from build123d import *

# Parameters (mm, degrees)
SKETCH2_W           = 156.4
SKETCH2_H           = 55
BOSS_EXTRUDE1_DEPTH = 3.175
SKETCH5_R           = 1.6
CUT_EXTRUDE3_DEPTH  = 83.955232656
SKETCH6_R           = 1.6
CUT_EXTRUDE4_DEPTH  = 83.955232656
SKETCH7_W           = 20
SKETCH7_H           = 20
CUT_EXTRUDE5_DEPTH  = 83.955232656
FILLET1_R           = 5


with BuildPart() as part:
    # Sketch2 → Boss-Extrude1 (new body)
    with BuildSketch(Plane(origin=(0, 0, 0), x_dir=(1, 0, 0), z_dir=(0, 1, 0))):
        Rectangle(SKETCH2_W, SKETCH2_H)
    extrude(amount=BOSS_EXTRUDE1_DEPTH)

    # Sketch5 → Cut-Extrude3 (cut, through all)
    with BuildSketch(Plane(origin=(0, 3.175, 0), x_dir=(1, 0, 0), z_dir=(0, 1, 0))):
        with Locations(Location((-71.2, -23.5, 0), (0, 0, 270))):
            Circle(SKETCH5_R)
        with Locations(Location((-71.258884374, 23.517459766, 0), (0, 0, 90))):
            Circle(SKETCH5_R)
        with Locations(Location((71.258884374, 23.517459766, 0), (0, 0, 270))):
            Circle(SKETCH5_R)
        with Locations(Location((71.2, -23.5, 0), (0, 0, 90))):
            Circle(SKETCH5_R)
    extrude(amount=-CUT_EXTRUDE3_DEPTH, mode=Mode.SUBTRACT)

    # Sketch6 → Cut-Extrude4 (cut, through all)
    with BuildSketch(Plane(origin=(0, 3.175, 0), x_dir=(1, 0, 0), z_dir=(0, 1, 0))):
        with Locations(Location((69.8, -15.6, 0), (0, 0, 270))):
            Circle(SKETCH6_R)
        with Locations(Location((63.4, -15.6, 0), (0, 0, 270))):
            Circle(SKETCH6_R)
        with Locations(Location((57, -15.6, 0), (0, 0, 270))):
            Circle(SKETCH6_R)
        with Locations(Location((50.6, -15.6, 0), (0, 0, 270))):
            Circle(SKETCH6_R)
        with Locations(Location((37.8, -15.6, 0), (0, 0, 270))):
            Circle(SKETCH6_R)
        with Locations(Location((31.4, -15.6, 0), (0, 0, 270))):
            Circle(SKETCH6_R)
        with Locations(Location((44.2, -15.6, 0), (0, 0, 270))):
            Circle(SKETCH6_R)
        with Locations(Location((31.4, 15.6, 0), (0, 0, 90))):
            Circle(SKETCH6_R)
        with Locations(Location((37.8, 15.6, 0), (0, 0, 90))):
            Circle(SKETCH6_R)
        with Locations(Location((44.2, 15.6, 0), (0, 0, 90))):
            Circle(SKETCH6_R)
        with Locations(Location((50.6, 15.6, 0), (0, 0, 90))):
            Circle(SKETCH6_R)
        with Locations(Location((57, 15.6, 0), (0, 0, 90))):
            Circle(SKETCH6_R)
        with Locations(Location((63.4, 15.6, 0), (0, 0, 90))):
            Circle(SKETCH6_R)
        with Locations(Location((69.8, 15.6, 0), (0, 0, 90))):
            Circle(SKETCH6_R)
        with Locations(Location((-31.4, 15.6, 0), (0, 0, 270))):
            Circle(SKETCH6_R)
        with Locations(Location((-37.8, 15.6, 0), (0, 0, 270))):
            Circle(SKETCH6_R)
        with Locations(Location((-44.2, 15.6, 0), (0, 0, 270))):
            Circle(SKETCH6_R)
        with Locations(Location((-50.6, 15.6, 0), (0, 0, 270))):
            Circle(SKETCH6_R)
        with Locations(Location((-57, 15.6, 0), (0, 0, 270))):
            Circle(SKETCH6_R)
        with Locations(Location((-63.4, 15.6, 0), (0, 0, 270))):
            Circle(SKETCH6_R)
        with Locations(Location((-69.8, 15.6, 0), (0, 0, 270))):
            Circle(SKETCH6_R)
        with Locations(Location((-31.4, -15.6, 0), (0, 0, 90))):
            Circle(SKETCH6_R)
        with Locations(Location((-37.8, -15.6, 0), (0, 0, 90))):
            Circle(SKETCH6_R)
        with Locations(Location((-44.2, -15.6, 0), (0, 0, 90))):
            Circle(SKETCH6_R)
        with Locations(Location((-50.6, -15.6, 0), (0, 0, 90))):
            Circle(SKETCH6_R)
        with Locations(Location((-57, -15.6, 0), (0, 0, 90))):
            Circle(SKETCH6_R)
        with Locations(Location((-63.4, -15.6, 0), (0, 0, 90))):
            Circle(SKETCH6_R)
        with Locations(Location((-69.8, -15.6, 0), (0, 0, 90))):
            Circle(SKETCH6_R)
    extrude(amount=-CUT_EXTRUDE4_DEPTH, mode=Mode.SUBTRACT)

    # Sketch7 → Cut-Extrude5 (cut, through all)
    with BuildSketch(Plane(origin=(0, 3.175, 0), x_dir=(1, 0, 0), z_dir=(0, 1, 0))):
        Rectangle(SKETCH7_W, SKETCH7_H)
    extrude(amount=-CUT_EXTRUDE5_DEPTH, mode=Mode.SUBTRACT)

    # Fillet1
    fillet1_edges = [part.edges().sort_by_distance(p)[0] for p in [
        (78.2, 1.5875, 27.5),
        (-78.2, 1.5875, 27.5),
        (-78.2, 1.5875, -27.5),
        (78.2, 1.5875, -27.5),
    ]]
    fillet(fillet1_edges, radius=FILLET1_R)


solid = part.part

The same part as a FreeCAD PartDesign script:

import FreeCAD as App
import Part
import Sketcher
Q = App.Units.Quantity


def edges_at(feature, points):
    """Names of the edges that pass closest to the given points."""
    edges = feature.Shape.Edges
    near = lambda p: min(range(len(edges)), key=lambda i: edges[i].distToShape(Part.Vertex(*p))[0])
    return sorted({f"Edge{near(p) + 1}" for p in points})


def add_polygon(sketch, points):
    """Adds a closed chain of lines whose ends are joined by coincident constraints."""
    first, n = sketch.GeometryCount, len(points)
    for a, b in zip(points, points[1:] + points[:1]):
        sketch.addGeometry(Part.LineSegment(App.Vector(*a, 0), App.Vector(*b, 0)), False)
    for i in range(n):
        sketch.addConstraint(Sketcher.Constraint("Coincident", first + i, 2, first + (i + 1) % n, 1))

doc = App.newDocument("Part")
body = doc.addObject("PartDesign::Body", "Body")

sketch1 = body.newObject("Sketcher::SketchObject", "Sketch")
sketch1.AttachmentSupport = (doc.getObject("XZ_Plane"), [""])
sketch1.MapMode = "FlatFace"
add_polygon(sketch1, [(-78, -28), (-78, 28), (78, 28), (78, -28)])
sketch1.addConstraint(Sketcher.Constraint("Vertical", 0))
sketch1.addConstraint(Sketcher.Constraint("Horizontal", 1))
sketch1.addConstraint(Sketcher.Constraint("Vertical", 2))
sketch1.addConstraint(Sketcher.Constraint("Horizontal", 3))
sketch1.addConstraint(Sketcher.Constraint("Symmetric", 0, 2, 2, 2, -1, 1))
sketch1.addConstraint(Sketcher.Constraint("DistanceY", 0, 1, 0, 2, Q("55 mm")))
sketch1.addConstraint(Sketcher.Constraint("DistanceX", 1, 1, 1, 2, Q("156.4 mm")))
pad1 = body.newObject("PartDesign::Pad", "Pad")
pad1.Profile = sketch1
pad1.Length = 3.175
pad1.Reversed = True

sketch2 = body.newObject("Sketcher::SketchObject", "Sketch001")
sketch2.AttachmentSupport = (doc.getObject("XZ_Plane"), [""])
sketch2.MapMode = "FlatFace"
sketch2.AttachmentOffset = App.Placement(App.Vector(0, 0, -3.175), App.Rotation())
sketch2.addGeometry(Part.Circle(App.Vector(-71.2, 23.5, 0), App.Vector(0, 0, 1), 1.6), False)
sketch2.addGeometry(Part.Circle(App.Vector(-71.3, -23.5, 0), App.Vector(0, 0, 1), 1.6), False)
sketch2.addGeometry(Part.Circle(App.Vector(71.3, -23.5, 0), App.Vector(0, 0, 1), 1.6), False)
sketch2.addGeometry(Part.Circle(App.Vector(71.2, 23.5, 0), App.Vector(0, 0, 1), 1.6), False)
sketch2.addConstraint(Sketcher.Constraint("Equal", 0, 1))
sketch2.addConstraint(Sketcher.Constraint("Equal", 1, 2))
sketch2.addConstraint(Sketcher.Constraint("Equal", 2, 3))
sketch2.addConstraint(Sketcher.Constraint("Symmetric", 1, 3, 2, 3, -2))
sketch2.addConstraint(Sketcher.Constraint("Symmetric", 0, 3, 3, 3, -2))
sketch2.addConstraint(Sketcher.Constraint("Diameter", 0, Q("3.2 mm")))
sketch2.addConstraint(Sketcher.Constraint("DistanceX", 0, 3, -1, 1, Q("71.2 mm")))
sketch2.addConstraint(Sketcher.Constraint("DistanceY", -1, 1, 0, 3, Q("23.5 mm")))
sketch2.addConstraint(Sketcher.Constraint("DistanceY", 1, 3, -1, 1, Q("23.51746 mm")))
sketch2.addConstraint(Sketcher.Constraint("DistanceX", 1, 3, 2, 3, Q("142.517769 mm")))
pocket1 = body.newObject("PartDesign::Pocket", "Pocket")
pocket1.Profile = sketch2
pocket1.Type = "ThroughAll"
pocket1.Reversed = True

sketch3 = body.newObject("Sketcher::SketchObject", "Sketch002")
sketch3.AttachmentSupport = (doc.getObject("XZ_Plane"), [""])
sketch3.MapMode = "FlatFace"
sketch3.AttachmentOffset = App.Placement(App.Vector(0, 0, -3.175), App.Rotation())
sketch3.addGeometry(Part.Circle(App.Vector(69.8, 15.6, 0), App.Vector(0, 0, 1), 1.6), False)
sketch3.addGeometry(Part.Circle(App.Vector(63.4, 15.6, 0), App.Vector(0, 0, 1), 1.6), False)
sketch3.addGeometry(Part.Circle(App.Vector(57, 15.6, 0), App.Vector(0, 0, 1), 1.6), False)
sketch3.addGeometry(Part.Circle(App.Vector(50.6, 15.6, 0), App.Vector(0, 0, 1), 1.6), False)
sketch3.addGeometry(Part.Circle(App.Vector(37.8, 15.6, 0), App.Vector(0, 0, 1), 1.6), False)
sketch3.addGeometry(Part.Circle(App.Vector(31.4, 15.6, 0), App.Vector(0, 0, 1), 1.6), False)
sketch3.addGeometry(Part.Circle(App.Vector(44.2, 15.6, 0), App.Vector(0, 0, 1), 1.6), False)
sketch3.addGeometry(Part.Circle(App.Vector(31.4, -15.6, 0), App.Vector(0, 0, 1), 1.6), False)
sketch3.addGeometry(Part.Circle(App.Vector(37.8, -15.6, 0), App.Vector(0, 0, 1), 1.6), False)
sketch3.addGeometry(Part.Circle(App.Vector(44.2, -15.6, 0), App.Vector(0, 0, 1), 1.6), False)
sketch3.addGeometry(Part.Circle(App.Vector(50.6, -15.6, 0), App.Vector(0, 0, 1), 1.6), False)
sketch3.addGeometry(Part.Circle(App.Vector(57, -15.6, 0), App.Vector(0, 0, 1), 1.6), False)
sketch3.addGeometry(Part.Circle(App.Vector(63.4, -15.6, 0), App.Vector(0, 0, 1), 1.6), False)
sketch3.addGeometry(Part.Circle(App.Vector(69.8, -15.6, 0), App.Vector(0, 0, 1), 1.6), False)
sketch3.addGeometry(Part.Circle(App.Vector(-31.4, -15.6, 0), App.Vector(0, 0, 1), 1.6), False)
sketch3.addGeometry(Part.Circle(App.Vector(-37.8, -15.6, 0), App.Vector(0, 0, 1), 1.6), False)
sketch3.addGeometry(Part.Circle(App.Vector(-44.2, -15.6, 0), App.Vector(0, 0, 1), 1.6), False)
sketch3.addGeometry(Part.Circle(App.Vector(-50.6, -15.6, 0), App.Vector(0, 0, 1), 1.6), False)
sketch3.addGeometry(Part.Circle(App.Vector(-57, -15.6, 0), App.Vector(0, 0, 1), 1.6), False)
sketch3.addGeometry(Part.Circle(App.Vector(-63.4, -15.6, 0), App.Vector(0, 0, 1), 1.6), False)
sketch3.addGeometry(Part.Circle(App.Vector(-69.8, -15.6, 0), App.Vector(0, 0, 1), 1.6), False)
sketch3.addGeometry(Part.Circle(App.Vector(-31.4, 15.6, 0), App.Vector(0, 0, 1), 1.6), False)
sketch3.addGeometry(Part.Circle(App.Vector(-37.8, 15.6, 0), App.Vector(0, 0, 1), 1.6), False)
sketch3.addGeometry(Part.Circle(App.Vector(-44.2, 15.6, 0), App.Vector(0, 0, 1), 1.6), False)
sketch3.addGeometry(Part.Circle(App.Vector(-50.6, 15.6, 0), App.Vector(0, 0, 1), 1.6), False)
sketch3.addGeometry(Part.Circle(App.Vector(-57, 15.6, 0), App.Vector(0, 0, 1), 1.6), False)
sketch3.addGeometry(Part.Circle(App.Vector(-63.4, 15.6, 0), App.Vector(0, 0, 1), 1.6), False)
sketch3.addGeometry(Part.Circle(App.Vector(-69.8, 15.6, 0), App.Vector(0, 0, 1), 1.6), False)
sketch3.addConstraint(Sketcher.Constraint("Equal", 0, 1))
sketch3.addConstraint(Sketcher.Constraint("Equal", 1, 2))
sketch3.addConstraint(Sketcher.Constraint("Equal", 2, 3))
sketch3.addConstraint(Sketcher.Constraint("Equal", 3, 4))
sketch3.addConstraint(Sketcher.Constraint("Equal", 4, 5))
sketch3.addConstraint(Sketcher.Constraint("Equal", 5, 6))
sketch3.addConstraint(Sketcher.Constraint("Equal", 6, 7))
sketch3.addConstraint(Sketcher.Constraint("Equal", 7, 8))
sketch3.addConstraint(Sketcher.Constraint("Equal", 8, 9))
sketch3.addConstraint(Sketcher.Constraint("Equal", 9, 10))
sketch3.addConstraint(Sketcher.Constraint("Equal", 10, 11))
sketch3.addConstraint(Sketcher.Constraint("Equal", 11, 12))
sketch3.addConstraint(Sketcher.Constraint("Equal", 12, 13))
sketch3.addConstraint(Sketcher.Constraint("Equal", 13, 14))
sketch3.addConstraint(Sketcher.Constraint("Equal", 14, 15))
sketch3.addConstraint(Sketcher.Constraint("Equal", 15, 16))
sketch3.addConstraint(Sketcher.Constraint("Equal", 16, 17))
sketch3.addConstraint(Sketcher.Constraint("Equal", 17, 18))
sketch3.addConstraint(Sketcher.Constraint("Equal", 18, 19))
sketch3.addConstraint(Sketcher.Constraint("Equal", 19, 20))
sketch3.addConstraint(Sketcher.Constraint("Equal", 20, 21))
sketch3.addConstraint(Sketcher.Constraint("Equal", 21, 22))
sketch3.addConstraint(Sketcher.Constraint("Equal", 22, 23))
sketch3.addConstraint(Sketcher.Constraint("Equal", 23, 24))
sketch3.addConstraint(Sketcher.Constraint("Equal", 24, 25))
sketch3.addConstraint(Sketcher.Constraint("Equal", 25, 26))
sketch3.addConstraint(Sketcher.Constraint("Equal", 26, 27))
sketch3.addConstraint(Sketcher.Constraint("Symmetric", 5, 3, 14, 3, -1, 1))
sketch3.addConstraint(Sketcher.Constraint("Symmetric", 4, 3, 15, 3, -1, 1))
sketch3.addConstraint(Sketcher.Constraint("Symmetric", 6, 3, 16, 3, -1, 1))
sketch3.addConstraint(Sketcher.Constraint("Symmetric", 3, 3, 17, 3, -1, 1))
sketch3.addConstraint(Sketcher.Constraint("Symmetric", 2, 3, 18, 3, -1, 1))
sketch3.addConstraint(Sketcher.Constraint("Symmetric", 1, 3, 19, 3, -1, 1))
sketch3.addConstraint(Sketcher.Constraint("Symmetric", 0, 3, 20, 3, -1, 1))
sketch3.addConstraint(Sketcher.Constraint("Symmetric", 7, 3, 21, 3, -1, 1))
sketch3.addConstraint(Sketcher.Constraint("Symmetric", 8, 3, 22, 3, -1, 1))
sketch3.addConstraint(Sketcher.Constraint("Symmetric", 9, 3, 23, 3, -1, 1))
sketch3.addConstraint(Sketcher.Constraint("Symmetric", 10, 3, 24, 3, -1, 1))
sketch3.addConstraint(Sketcher.Constraint("Symmetric", 11, 3, 25, 3, -1, 1))
sketch3.addConstraint(Sketcher.Constraint("Symmetric", 12, 3, 26, 3, -1, 1))
sketch3.addConstraint(Sketcher.Constraint("Symmetric", 13, 3, 27, 3, -1, 1))
sketch3.addConstraint(Sketcher.Constraint("Symmetric", 7, 3, 14, 3, -2))
sketch3.addConstraint(Sketcher.Constraint("Symmetric", 8, 3, 15, 3, -2))
sketch3.addConstraint(Sketcher.Constraint("Symmetric", 9, 3, 16, 3, -2))
sketch3.addConstraint(Sketcher.Constraint("Symmetric", 10, 3, 17, 3, -2))
sketch3.addConstraint(Sketcher.Constraint("Symmetric", 11, 3, 18, 3, -2))
sketch3.addConstraint(Sketcher.Constraint("Symmetric", 12, 3, 19, 3, -2))
sketch3.addConstraint(Sketcher.Constraint("Symmetric", 13, 3, 20, 3, -2))
sketch3.addConstraint(Sketcher.Constraint("Horizontal", 0, 3, 1, 3))
sketch3.addConstraint(Sketcher.Constraint("Horizontal", 1, 3, 2, 3))
sketch3.addConstraint(Sketcher.Constraint("Horizontal", 2, 3, 3, 3))
sketch3.addConstraint(Sketcher.Constraint("Horizontal", 3, 3, 4, 3))
sketch3.addConstraint(Sketcher.Constraint("Horizontal", 4, 3, 5, 3))
sketch3.addConstraint(Sketcher.Constraint("Horizontal", 5, 3, 6, 3))
sketch3.addConstraint(Sketcher.Constraint("Diameter", 0, Q("3.2 mm")))
sketch3.addConstraint(Sketcher.Constraint("DistanceX", -1, 1, 2, 3, Q("57 mm")))
sketch3.addConstraint(Sketcher.Constraint("DistanceX", 4, 3, 0, 3, Q("32 mm")))
sketch3.addConstraint(Sketcher.Constraint("DistanceX", 5, 3, 1, 3, Q("32 mm")))
sketch3.addConstraint(Sketcher.Constraint("DistanceX", 16, 3, 8, 3, Q("82 mm")))
sketch3.addConstraint(Sketcher.Constraint("DistanceX", 17, 3, 7, 3, Q("82 mm")))
sketch3.addConstraint(Sketcher.Constraint("DistanceX", -1, 1, 0, 3, Q("69.8 mm")))
sketch3.addConstraint(Sketcher.Constraint("DistanceY", -1, 1, 0, 3, Q("15.6 mm")))
sketch3.addConstraint(Sketcher.Constraint("DistanceX", -1, 1, 1, 3, Q("63.4 mm")))
pocket2 = body.newObject("PartDesign::Pocket", "Pocket001")
pocket2.Profile = sketch3
pocket2.Type = "ThroughAll"
pocket2.Reversed = True

sketch4 = body.newObject("Sketcher::SketchObject", "Sketch003")
sketch4.AttachmentSupport = (doc.getObject("XZ_Plane"), [""])
sketch4.MapMode = "FlatFace"
sketch4.AttachmentOffset = App.Placement(App.Vector(0, 0, -3.175), App.Rotation())
add_polygon(sketch4, [(-10, -10), (-10, 10), (10, 10), (10, -10)])
sketch4.addConstraint(Sketcher.Constraint("Vertical", 0))
sketch4.addConstraint(Sketcher.Constraint("Horizontal", 1))
sketch4.addConstraint(Sketcher.Constraint("Vertical", 2))
sketch4.addConstraint(Sketcher.Constraint("Horizontal", 3))
sketch4.addConstraint(Sketcher.Constraint("Symmetric", 0, 2, 2, 2, -1, 1))
sketch4.addConstraint(Sketcher.Constraint("Equal", 3, 0))
sketch4.addConstraint(Sketcher.Constraint("DistanceX", 1, 1, 1, 2, Q("20 mm")))
pocket3 = body.newObject("PartDesign::Pocket", "Pocket002")
pocket3.Profile = sketch4
pocket3.Type = "ThroughAll"
pocket3.Reversed = True
doc.recompute()

fillet = body.newObject("PartDesign::Fillet", "Fillet")
fillet.Base = (pocket3, edges_at(pocket3, [
    (78.2, 1.587, 27.5),
    (-78.2, 1.587, 27.5),
    (-78.2, 1.587, -27.5),
    (78.2, 1.587, -27.5),
]))
fillet.Radius = 5

doc.recompute()
